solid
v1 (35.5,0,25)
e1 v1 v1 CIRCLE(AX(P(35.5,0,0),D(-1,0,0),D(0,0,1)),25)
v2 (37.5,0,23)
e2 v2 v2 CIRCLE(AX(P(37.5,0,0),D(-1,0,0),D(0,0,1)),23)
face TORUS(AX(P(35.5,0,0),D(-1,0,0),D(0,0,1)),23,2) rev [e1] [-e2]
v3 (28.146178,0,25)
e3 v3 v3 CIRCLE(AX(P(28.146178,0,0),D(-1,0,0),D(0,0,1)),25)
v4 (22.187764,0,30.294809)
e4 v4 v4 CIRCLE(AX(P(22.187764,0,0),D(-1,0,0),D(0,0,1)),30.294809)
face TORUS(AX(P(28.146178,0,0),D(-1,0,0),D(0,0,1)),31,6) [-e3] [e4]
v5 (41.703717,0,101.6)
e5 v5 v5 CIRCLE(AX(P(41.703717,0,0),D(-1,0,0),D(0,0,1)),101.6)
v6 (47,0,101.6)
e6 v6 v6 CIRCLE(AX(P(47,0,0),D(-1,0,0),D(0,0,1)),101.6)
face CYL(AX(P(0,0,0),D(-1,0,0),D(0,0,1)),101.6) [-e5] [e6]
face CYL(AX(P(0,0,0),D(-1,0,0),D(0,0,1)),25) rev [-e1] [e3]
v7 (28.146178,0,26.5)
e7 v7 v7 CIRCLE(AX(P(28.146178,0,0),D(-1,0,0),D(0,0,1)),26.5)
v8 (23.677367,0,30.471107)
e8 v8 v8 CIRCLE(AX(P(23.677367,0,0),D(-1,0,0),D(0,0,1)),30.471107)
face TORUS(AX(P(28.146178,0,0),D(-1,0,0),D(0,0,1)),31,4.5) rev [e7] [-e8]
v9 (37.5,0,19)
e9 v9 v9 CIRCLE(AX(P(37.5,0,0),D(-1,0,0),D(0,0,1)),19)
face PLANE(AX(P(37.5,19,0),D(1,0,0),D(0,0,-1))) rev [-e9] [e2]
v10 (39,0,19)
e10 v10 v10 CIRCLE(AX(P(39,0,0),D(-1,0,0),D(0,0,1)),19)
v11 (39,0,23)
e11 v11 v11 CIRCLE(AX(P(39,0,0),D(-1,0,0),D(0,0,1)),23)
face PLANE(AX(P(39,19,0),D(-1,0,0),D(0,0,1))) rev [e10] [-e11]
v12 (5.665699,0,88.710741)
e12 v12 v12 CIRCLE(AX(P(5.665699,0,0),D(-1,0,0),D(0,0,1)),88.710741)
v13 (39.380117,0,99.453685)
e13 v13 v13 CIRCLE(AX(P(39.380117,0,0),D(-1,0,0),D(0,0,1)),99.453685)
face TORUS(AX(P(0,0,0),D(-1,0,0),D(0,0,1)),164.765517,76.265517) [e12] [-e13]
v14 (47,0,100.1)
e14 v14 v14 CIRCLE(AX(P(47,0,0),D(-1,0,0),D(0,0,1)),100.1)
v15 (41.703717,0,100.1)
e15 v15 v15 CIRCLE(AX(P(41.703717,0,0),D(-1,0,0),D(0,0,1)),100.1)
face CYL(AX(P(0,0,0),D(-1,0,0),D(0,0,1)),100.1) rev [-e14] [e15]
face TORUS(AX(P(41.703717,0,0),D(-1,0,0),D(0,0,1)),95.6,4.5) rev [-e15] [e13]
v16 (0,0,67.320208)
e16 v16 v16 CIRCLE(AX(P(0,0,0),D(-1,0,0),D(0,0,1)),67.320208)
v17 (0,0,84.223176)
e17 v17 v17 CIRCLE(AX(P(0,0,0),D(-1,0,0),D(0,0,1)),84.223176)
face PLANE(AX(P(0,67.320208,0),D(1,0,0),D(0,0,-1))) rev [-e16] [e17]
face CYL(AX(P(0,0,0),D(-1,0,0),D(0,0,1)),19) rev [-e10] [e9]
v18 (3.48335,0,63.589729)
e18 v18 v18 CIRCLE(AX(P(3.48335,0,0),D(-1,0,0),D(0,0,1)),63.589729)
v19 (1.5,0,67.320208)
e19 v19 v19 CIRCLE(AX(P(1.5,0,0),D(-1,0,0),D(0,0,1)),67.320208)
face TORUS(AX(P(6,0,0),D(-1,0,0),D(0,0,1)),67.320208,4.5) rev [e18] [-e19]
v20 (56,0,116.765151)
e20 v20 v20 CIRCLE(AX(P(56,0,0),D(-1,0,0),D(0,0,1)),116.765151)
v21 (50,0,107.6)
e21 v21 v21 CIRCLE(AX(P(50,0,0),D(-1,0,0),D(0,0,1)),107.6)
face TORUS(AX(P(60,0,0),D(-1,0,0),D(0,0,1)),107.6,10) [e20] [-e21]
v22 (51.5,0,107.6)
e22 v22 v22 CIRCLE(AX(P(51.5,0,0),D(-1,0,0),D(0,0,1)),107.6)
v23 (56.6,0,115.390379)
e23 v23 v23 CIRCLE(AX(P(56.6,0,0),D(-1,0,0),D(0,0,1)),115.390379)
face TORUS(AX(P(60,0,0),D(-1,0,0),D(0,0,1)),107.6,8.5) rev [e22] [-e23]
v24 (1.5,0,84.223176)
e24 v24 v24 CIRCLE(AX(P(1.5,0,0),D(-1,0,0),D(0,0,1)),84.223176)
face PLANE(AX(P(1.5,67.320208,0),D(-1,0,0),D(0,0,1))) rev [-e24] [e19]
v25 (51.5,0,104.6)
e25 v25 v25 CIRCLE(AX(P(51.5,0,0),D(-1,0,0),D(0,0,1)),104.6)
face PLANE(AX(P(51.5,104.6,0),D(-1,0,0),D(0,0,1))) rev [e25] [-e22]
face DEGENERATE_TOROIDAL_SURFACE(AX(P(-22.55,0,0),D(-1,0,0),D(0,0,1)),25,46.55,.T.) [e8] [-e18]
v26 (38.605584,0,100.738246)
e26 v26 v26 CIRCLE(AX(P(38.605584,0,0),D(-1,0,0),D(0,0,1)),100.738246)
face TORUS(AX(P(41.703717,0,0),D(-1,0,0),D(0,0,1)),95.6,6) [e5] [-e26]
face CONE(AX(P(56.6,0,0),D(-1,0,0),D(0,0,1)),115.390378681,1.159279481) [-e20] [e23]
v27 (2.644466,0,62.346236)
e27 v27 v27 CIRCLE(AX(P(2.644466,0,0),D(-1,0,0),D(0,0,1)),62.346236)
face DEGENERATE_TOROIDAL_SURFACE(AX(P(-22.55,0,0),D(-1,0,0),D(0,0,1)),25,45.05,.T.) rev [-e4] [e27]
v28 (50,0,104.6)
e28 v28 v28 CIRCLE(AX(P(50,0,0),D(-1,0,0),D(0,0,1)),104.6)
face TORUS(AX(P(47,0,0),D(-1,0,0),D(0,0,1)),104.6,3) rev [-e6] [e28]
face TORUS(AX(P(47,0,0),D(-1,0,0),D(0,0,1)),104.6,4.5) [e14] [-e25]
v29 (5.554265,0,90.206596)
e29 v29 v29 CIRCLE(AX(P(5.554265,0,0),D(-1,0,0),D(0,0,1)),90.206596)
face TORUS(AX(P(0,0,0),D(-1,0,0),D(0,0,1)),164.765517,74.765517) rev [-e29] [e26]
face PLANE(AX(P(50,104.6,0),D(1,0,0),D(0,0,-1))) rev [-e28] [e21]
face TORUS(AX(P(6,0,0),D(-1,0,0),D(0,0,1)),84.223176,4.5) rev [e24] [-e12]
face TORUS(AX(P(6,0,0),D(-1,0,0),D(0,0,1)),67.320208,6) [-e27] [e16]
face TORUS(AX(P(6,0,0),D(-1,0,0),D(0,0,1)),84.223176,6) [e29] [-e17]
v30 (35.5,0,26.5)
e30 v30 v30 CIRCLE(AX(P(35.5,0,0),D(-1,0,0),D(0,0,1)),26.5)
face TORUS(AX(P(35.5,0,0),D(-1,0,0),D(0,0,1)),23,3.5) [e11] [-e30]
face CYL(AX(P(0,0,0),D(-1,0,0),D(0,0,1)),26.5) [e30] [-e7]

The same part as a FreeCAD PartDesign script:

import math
import FreeCAD as App
import Part
import Sketcher

doc = App.newDocument("Part")
body = doc.addObject("PartDesign::Body", "Body")

# Sketch on XY plane
sketch1 = doc.addObject("Sketcher::SketchObject", "Sketch")
body.addObject(sketch1)
sketch1.AttachmentSupport = (doc.XY_Plane, [""])
sketch1.MapMode = "FlatFace"
sketch1.addGeometry(Part.LineSegment(App.Vector(37.5, 23, 0), App.Vector(37.5, 19, 0)), False)
sketch1.addGeometry(Part.LineSegment(App.Vector(37.5, 19, 0), App.Vector(39, 19, 0)), False)
sketch1.addGeometry(Part.LineSegment(App.Vector(39, 19, 0), App.Vector(39, 23, 0)), False)
sketch1.addGeometry(Part.ArcOfCircle(Part.Circle(App.Vector(35.5, 23, 0), App.Vector(0, 0, 1), 3.5), math.radians(0), math.radians(90)), False)
sketch1.addGeometry(Part.LineSegment(App.Vector(35.5, 26.5, 0), App.Vector(28.146178, 26.5, 0)), False)
sketch1.addGeometry(Part.ArcOfCircle(Part.Circle(App.Vector(28.146178, 31, 0), App.Vector(0, 0, 1), 4.5), math.radians(-173.250321), math.radians(-90)), False)
sketch1.addGeometry(Part.ArcOfCircle(Part.Circle(App.Vector(-22.55, 25, 0), App.Vector(0, 0, 1), 46.55), math.radians(6.749679), math.radians(55.995665)), False)
sketch1.addGeometry(Part.ArcOfCircle(Part.Circle(App.Vector(6, 67.320208, 0), App.Vector(0, 0, 1), 4.5), math.radians(180), math.radians(235.995665)), False)
sketch1.addGeometry(Part.LineSegment(App.Vector(1.5, 67.320208, 0), App.Vector(1.5, 84.223176, 0)), False)
sketch1.addGeometry(Part.ArcOfCircle(Part.Circle(App.Vector(6, 84.223176, 0), App.Vector(0, 0, 1), 4.5), math.radians(94.260378), math.radians(180)), False)
sketch1.addGeometry(Part.ArcOfCircle(Part.Circle(App.Vector(0, 164.765517, 0), App.Vector(0, 0, 1), 76.265517), math.radians(-85.739621), math.radians(-58.9119)), False)
sketch1.addGeometry(Part.ArcOfCircle(Part.Circle(App.Vector(41.703717, 95.6, 0), App.Vector(0, 0, 1), 4.5), math.radians(90), math.radians(121.0881)), False)
sketch1.addGeometry(Part.LineSegment(App.Vector(41.703717, 100.1, 0), App.Vector(47, 100.1, 0)), False)
sketch1.addGeometry(Part.ArcOfCircle(Part.Circle(App.Vector(47, 104.6, 0), App.Vector(0, 0, 1), 4.5), math.radians(-90), math.radians(0)), False)
sketch1.addGeometry(Part.LineSegment(App.Vector(51.5, 104.6, 0), App.Vector(51.5, 107.6, 0)), False)
sketch1.addGeometry(Part.ArcOfCircle(Part.Circle(App.Vector(60, 107.6, 0), App.Vector(0, 0, 1), 8.5), math.radians(113.578178), math.radians(180)), False)
sketch1.addGeometry(Part.LineSegment(App.Vector(56.6, 115.390379, 0), App.Vector(56, 116.765151, 0)), False)
sketch1.addGeometry(Part.ArcOfCircle(Part.Circle(App.Vector(60, 107.6, 0), App.Vector(0, 0, 1), 10), math.radians(113.578178), math.radians(180)), False)
sketch1.addGeometry(Part.LineSegment(App.Vector(50, 107.6, 0), App.Vector(50, 104.6, 0)), False)
sketch1.addGeometry(Part.ArcOfCircle(Part.Circle(App.Vector(47, 104.6, 0), App.Vector(0, 0, 1), 3), math.radians(-90), math.radians(0)), False)
sketch1.addGeometry(Part.LineSegment(App.Vector(47, 101.6, 0), App.Vector(41.703717, 101.6, 0)), False)
sketch1.addGeometry(Part.ArcOfCircle(Part.Circle(App.Vector(41.703717, 95.6, 0), App.Vector(0, 0, 1), 6), math.radians(90), math.radians(121.0881)), False)
sketch1.addGeometry(Part.ArcOfCircle(Part.Circle(App.Vector(0, 164.765517, 0), App.Vector(0, 0, 1), 74.765517), math.radians(-85.739621), math.radians(-58.9119)), False)
sketch1.addGeometry(Part.ArcOfCircle(Part.Circle(App.Vector(6, 84.223176, 0), App.Vector(0, 0, 1), 6), math.radians(94.260378), math.radians(180)), False)
sketch1.addGeometry(Part.LineSegment(App.Vector(0, 84.223176, 0), App.Vector(0, 67.320208, 0)), False)
sketch1.addGeometry(Part.ArcOfCircle(Part.Circle(App.Vector(6, 67.320208, 0), App.Vector(0, 0, 1), 6), math.radians(180), math.radians(235.995665)), False)
sketch1.addGeometry(Part.ArcOfCircle(Part.Circle(App.Vector(-22.55, 25, 0), App.Vector(0, 0, 1), 45.05), math.radians(6.749679), math.radians(55.995665)), False)
sketch1.addGeometry(Part.ArcOfCircle(Part.Circle(App.Vector(28.146178, 31, 0), App.Vector(0, 0, 1), 6), math.radians(-173.250321), math.radians(-90)), False)
sketch1.addGeometry(Part.LineSegment(App.Vector(28.146178, 25, 0), App.Vector(35.5, 25, 0)), False)
sketch1.addGeometry(Part.ArcOfCircle(Part.Circle(App.Vector(35.5, 23, 0), App.Vector(0, 0, 1), 2), math.radians(0), math.radians(90)), False)
sketch1.addConstraint(Sketcher.Constraint("Coincident", 0, 2, 1, 1))
sketch1.addConstraint(Sketcher.Constraint("Coincident", 1, 2, 2, 1))
sketch1.addConstraint(Sketcher.Constraint("Tangent", 2, 2, 3, 1))
sketch1.addConstraint(Sketcher.Constraint("Tangent", 3, 2, 4, 1))
sketch1.addConstraint(Sketcher.Constraint("Tangent", 4, 2, 5, 2))
sketch1.addConstraint(Sketcher.Constraint("Tangent", 5, 1, 6, 1))
sketch1.addConstraint(Sketcher.Constraint("Tangent", 6, 2, 7, 2))
sketch1.addConstraint(Sketcher.Constraint("Tangent", 7, 1, 8, 1))
sketch1.addConstraint(Sketcher.Constraint("Tangent", 8, 2, 9, 2))
sketch1.addConstraint(Sketcher.Constraint("Tangent", 9, 1, 10, 1))
sketch1.addConstraint(Sketcher.Constraint("Tangent", 10, 2, 11, 2))
sketch1.addConstraint(Sketcher.Constraint("Tangent", 11, 1, 12, 1))
sketch1.addConstraint(Sketcher.Constraint("Tangent", 12, 2, 13, 1))
sketch1.addConstraint(Sketcher.Constraint("Tangent", 13, 2, 14, 1))
sketch1.addConstraint(Sketcher.Constraint("Tangent", 14, 2, 15, 2))
sketch1.addConstraint(Sketcher.Constraint("Coincident", 15, 1, 16, 1))
sketch1.addConstraint(Sketcher.Constraint("Coincident", 16, 2, 17, 1))
sketch1.addConstraint(Sketcher.Constraint("Tangent", 17, 2, 18, 1))
sketch1.addConstraint(Sketcher.Constraint("Tangent", 18, 2, 19, 2))
sketch1.addConstraint(Sketcher.Constraint("Tangent", 19, 1, 20, 1))
sketch1.addConstraint(Sketcher.Constraint("Tangent", 20, 2, 21, 1))
sketch1.addConstraint(Sketcher.Constraint("Tangent", 21, 2, 22, 2))
sketch1.addConstraint(Sketcher.Constraint("Tangent", 22, 1, 23, 1))
sketch1.addConstraint(Sketcher.Constraint("Tangent", 23, 2, 24, 1))
sketch1.addConstraint(Sketcher.Constraint("Tangent", 24, 2, 25, 1))
sketch1.addConstraint(Sketcher.Constraint("Tangent", 25, 2, 26, 2))
sketch1.addConstraint(Sketcher.Constraint("Tangent", 26, 1, 27, 1))
sketch1.addConstraint(Sketcher.Constraint("Tangent", 27, 2, 28, 1))
sketch1.addConstraint(Sketcher.Constraint("Tangent", 28, 2, 29, 2))
sketch1.addConstraint(Sketcher.Constraint("Tangent", 29, 1, 0, 1))
sketch1.addConstraint(Sketcher.Constraint("Vertical", 0))
sketch1.addConstraint(Sketcher.Constraint("Horizontal", 1))
sketch1.addConstraint(Sketcher.Constraint("Vertical", 2))
sketch1.addConstraint(Sketcher.Constraint("Horizontal", 4))
sketch1.addConstraint(Sketcher.Constraint("Vertical", 8))
sketch1.addConstraint(Sketcher.Constraint("Horizontal", 12))
sketch1.addConstraint(Sketcher.Constraint("Vertical", 14))
sketch1.addConstraint(Sketcher.Constraint("Vertical", 18))
sketch1.addConstraint(Sketcher.Constraint("Horizontal", 20))
sketch1.addConstraint(Sketcher.Constraint("Vertical", 24))
sketch1.addConstraint(Sketcher.Constraint("Horizontal", 28))
sketch1.addConstraint(Sketcher.Constraint("Coincident", 17, 3, 15, 3))
sketch1.addConstraint(Sketcher.Constraint("Coincident", 19, 3, 13, 3))
sketch1.addConstraint(Sketcher.Constraint("Coincident", 21, 3, 11, 3))
sketch1.addConstraint(Sketcher.Constraint("Coincident", 22, 3, 10, 3))
sketch1.addConstraint(Sketcher.Constraint("Coincident", 23, 3, 9, 3))
sketch1.addConstraint(Sketcher.Constraint("Coincident", 25, 3, 7, 3))
sketch1.addConstraint(Sketcher.Constraint("Coincident", 26, 3, 6, 3))
sketch1.addConstraint(Sketcher.Constraint("Coincident", 27, 3, 5, 3))
sketch1.addConstraint(Sketcher.Constraint("Coincident", 29, 3, 3, 3))
sketch1.addConstraint(Sketcher.Constraint("Equal", 5, 7))
sketch1.addConstraint(Sketcher.Constraint("Equal", 7, 9))
sketch1.addConstraint(Sketcher.Constraint("Equal", 9, 11))
sketch1.addConstraint(Sketcher.Constraint("Equal", 11, 13))
sketch1.addConstraint(Sketcher.Constraint("PointOnObject", 10, 3, -2))
sketch1.addConstraint(Sketcher.Constraint("PointOnObject", 23, 2, -2))
sketch1.addConstraint(Sketcher.Constraint("Horizontal", 26, 3, 27, 2))
sketch1.addConstraint(Sketcher.Constraint("Radius", 17, 10.0))
sketch1.addConstraint(Sketcher.Constraint("Radius", 19, 3.0))
sketch1.addConstraint(Sketcher.Constraint("Radius", 21, 6.0))
sketch1.addConstraint(Sketcher.Constraint("Radius", 29, 2.0))
sketch1.addConstraint(Sketcher.Constraint("DistanceY", 0, 2, 0, 1, 4.0))
sketch1.addConstraint(Sketcher.Constraint("DistanceY", 14, 1, 14, 2, 3.0))
sketch1.addConstraint(Sketcher.Constraint("Radius", 6, 46.55))
sketch1.addConstraint(Sketcher.Constraint("DistanceY", -1, 1, 3, 3, 23.0))
sketch1.addConstraint(Sketcher.Constraint("DistanceX", -1, 1, 13, 3, 47.0))
sketch1.addConstraint(Sketcher.Constraint("DistanceX", -1, 1, 1, 2, 39.0))
sketch1.addConstraint(Sketcher.Constraint("DistanceX", -1, 1, 16, 2, 56.0))
sketch1.addConstraint(Sketcher.Constraint("DistanceY", -1, 1, 11, 3, 95.6))
sketch1.addConstraint(Sketcher.Constraint("DistanceX", -1, 1, 15, 1, 56.6))
sketch1.addConstraint(Sketcher.Constraint("DistanceX", 6, 3, -1, 1, 22.55))
sketch1.addConstraint(Sketcher.Constraint("Radius", 10, 76.265517))
sketch1.addConstraint(Sketcher.Constraint("DistanceX", 12, 1, 12, 2, 5.296283))
revolution = doc.addObject("PartDesign::Revolution", "Revolution")
body.addObject(revolution)
revolution.Profile = sketch1
revolution.ReferenceAxis = (sketch1, ["H_Axis"])
revolution.Angle = 360

doc.recompute()
